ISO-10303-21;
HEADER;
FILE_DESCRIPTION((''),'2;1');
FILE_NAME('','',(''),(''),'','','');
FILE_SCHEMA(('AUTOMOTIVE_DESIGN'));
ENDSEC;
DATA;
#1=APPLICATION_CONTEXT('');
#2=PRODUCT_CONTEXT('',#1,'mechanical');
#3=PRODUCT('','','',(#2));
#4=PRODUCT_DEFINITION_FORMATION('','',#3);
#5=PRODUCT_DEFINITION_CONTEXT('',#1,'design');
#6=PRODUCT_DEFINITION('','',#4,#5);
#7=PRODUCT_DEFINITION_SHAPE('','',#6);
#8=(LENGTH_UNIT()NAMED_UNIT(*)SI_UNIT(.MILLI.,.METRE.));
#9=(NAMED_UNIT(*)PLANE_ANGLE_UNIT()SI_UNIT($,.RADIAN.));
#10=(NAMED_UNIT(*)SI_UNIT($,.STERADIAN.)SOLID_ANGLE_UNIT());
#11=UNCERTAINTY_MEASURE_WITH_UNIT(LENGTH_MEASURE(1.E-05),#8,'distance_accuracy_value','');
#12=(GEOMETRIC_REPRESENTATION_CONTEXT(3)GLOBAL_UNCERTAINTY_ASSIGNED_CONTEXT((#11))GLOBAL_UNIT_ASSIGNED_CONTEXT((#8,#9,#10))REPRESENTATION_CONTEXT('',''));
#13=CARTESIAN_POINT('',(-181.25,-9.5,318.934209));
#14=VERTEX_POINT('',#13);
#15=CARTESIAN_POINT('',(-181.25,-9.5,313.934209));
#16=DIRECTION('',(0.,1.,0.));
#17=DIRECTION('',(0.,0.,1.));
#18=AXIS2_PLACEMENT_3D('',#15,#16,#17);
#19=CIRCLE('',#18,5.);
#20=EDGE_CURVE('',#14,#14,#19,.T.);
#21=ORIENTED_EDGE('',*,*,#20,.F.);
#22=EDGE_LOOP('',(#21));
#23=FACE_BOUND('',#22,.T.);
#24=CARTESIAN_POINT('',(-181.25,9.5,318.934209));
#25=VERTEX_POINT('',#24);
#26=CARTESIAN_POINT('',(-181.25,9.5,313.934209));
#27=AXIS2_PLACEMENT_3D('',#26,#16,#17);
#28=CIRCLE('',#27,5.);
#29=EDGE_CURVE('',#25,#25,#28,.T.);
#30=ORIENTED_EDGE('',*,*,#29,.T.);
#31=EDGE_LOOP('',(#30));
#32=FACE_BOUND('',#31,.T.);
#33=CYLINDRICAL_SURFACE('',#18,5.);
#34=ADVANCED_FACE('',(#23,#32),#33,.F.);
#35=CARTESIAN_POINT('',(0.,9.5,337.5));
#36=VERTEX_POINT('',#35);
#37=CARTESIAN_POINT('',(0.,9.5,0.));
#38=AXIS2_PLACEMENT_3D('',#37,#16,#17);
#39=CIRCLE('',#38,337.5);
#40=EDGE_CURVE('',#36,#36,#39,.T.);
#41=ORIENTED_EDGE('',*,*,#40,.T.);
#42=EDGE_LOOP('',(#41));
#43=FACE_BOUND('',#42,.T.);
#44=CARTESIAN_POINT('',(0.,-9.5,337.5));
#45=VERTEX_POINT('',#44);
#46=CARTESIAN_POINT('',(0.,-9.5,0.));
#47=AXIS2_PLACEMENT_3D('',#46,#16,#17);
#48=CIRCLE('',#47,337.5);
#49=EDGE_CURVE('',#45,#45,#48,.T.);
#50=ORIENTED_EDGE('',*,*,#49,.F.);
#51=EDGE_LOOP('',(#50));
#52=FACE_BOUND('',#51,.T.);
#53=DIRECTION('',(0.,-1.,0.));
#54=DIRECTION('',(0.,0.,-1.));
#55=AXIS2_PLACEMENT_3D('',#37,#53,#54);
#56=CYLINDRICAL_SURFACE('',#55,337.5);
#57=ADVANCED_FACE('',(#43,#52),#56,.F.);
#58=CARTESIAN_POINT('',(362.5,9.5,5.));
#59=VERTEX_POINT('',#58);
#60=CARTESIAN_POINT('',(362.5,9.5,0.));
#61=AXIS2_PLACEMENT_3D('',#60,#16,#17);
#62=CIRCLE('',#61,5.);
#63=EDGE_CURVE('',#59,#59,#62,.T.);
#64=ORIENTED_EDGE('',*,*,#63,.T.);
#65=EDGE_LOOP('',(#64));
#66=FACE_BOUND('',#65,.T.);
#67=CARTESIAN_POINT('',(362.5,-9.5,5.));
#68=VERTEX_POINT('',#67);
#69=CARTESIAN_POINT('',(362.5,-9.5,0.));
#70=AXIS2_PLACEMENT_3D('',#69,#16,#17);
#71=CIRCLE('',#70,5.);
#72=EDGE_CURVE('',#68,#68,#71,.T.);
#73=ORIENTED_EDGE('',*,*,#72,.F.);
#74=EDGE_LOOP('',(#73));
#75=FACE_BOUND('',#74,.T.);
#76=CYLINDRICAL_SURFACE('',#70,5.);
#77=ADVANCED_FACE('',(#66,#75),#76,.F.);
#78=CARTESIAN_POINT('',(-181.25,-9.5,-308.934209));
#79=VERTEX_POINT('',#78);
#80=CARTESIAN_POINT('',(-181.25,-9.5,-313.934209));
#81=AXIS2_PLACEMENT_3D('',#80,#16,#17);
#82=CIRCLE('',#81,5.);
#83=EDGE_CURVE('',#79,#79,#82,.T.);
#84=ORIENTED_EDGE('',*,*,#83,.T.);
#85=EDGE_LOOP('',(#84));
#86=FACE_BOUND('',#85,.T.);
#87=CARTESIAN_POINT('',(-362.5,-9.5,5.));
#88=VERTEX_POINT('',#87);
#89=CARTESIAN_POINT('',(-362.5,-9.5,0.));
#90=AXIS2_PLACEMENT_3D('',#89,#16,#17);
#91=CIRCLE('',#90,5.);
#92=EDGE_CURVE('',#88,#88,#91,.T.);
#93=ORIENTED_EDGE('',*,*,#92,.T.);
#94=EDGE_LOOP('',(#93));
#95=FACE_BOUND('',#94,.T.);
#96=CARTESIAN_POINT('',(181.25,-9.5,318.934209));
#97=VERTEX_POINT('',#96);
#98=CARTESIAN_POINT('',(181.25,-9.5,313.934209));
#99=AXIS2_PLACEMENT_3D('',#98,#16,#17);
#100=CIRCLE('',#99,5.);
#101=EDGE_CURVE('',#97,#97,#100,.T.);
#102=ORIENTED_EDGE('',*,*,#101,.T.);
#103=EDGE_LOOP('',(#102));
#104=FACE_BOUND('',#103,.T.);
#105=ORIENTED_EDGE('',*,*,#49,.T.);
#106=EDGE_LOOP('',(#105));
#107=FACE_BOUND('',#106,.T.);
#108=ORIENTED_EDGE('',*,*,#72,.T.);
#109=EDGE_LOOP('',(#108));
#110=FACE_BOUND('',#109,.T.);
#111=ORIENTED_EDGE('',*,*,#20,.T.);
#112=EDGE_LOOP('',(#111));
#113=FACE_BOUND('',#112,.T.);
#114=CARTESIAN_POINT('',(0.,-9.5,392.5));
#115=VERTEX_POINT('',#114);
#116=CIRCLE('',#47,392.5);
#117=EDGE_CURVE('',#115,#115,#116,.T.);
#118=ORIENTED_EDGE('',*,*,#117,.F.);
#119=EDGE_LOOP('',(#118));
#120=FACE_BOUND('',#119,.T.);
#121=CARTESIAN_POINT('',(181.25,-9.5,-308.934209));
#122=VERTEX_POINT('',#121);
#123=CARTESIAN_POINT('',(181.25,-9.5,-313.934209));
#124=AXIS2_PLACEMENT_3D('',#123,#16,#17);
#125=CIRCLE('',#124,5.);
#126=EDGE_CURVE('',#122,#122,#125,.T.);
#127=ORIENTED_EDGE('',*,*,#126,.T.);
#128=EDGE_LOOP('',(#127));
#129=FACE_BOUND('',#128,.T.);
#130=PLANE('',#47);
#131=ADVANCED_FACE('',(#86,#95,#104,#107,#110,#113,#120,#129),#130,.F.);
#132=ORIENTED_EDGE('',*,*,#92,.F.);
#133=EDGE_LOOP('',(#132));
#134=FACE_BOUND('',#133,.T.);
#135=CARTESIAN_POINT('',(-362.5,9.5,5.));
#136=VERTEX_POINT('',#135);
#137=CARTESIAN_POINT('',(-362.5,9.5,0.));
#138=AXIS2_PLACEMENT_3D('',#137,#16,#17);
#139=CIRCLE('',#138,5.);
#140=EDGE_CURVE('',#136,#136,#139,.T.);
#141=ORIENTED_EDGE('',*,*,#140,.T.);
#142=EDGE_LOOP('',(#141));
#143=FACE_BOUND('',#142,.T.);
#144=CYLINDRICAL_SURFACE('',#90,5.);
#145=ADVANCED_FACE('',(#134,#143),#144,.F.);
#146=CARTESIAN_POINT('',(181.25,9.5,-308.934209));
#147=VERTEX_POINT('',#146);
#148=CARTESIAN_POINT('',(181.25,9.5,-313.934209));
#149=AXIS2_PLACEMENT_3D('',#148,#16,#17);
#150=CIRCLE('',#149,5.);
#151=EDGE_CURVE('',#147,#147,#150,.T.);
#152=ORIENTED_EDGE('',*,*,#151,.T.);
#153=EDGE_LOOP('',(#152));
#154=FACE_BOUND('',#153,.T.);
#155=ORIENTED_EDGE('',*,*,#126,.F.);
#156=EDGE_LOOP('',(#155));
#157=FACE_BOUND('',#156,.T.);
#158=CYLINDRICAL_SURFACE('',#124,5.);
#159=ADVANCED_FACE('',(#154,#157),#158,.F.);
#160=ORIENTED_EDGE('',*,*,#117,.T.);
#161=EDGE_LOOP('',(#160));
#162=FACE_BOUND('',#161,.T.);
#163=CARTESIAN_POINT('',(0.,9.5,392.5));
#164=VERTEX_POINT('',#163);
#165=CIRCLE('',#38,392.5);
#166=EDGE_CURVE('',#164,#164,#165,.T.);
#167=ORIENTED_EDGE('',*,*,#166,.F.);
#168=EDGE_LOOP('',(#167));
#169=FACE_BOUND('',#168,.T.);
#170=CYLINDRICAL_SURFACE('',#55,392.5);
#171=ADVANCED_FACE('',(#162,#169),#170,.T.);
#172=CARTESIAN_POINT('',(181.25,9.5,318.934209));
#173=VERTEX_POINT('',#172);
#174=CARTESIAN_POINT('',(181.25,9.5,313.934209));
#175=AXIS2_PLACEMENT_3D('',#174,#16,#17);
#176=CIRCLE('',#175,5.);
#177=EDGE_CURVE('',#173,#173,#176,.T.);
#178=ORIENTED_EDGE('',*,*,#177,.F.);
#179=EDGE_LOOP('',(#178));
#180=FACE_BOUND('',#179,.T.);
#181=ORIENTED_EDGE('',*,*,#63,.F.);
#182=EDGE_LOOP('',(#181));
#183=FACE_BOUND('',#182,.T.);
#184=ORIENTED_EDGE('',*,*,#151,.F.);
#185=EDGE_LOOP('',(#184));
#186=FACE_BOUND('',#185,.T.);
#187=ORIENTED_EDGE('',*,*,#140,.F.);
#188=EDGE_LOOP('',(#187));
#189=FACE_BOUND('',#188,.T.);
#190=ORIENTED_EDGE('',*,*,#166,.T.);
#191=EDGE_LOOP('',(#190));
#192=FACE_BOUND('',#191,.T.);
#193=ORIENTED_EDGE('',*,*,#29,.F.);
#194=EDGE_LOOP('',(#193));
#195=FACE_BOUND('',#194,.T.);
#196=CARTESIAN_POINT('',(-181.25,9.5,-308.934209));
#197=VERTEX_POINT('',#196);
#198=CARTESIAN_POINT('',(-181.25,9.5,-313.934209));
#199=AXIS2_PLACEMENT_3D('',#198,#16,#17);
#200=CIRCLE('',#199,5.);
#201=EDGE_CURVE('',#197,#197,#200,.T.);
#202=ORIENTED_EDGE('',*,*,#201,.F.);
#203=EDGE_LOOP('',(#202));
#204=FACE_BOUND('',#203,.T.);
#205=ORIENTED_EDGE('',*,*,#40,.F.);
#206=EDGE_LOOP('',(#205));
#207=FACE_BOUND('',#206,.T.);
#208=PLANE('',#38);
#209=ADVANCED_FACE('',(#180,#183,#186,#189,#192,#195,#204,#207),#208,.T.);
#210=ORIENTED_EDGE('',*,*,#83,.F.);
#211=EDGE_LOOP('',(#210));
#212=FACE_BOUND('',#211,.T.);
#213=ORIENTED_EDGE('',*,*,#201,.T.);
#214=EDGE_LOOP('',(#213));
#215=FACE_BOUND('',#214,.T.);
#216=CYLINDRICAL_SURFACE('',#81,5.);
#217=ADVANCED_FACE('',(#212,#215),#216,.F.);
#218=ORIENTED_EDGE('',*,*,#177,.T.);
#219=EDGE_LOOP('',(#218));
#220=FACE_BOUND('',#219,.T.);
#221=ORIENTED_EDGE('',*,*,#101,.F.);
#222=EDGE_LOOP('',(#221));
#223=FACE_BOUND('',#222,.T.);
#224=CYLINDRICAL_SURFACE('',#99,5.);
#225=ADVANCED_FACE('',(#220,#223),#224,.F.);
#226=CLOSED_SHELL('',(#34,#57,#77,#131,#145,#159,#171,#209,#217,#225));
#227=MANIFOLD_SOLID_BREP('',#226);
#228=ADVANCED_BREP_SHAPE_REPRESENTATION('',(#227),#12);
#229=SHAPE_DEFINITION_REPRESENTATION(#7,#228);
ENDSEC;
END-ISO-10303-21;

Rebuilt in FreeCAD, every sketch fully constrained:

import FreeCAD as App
import Part
import Sketcher
Q = App.Units.Quantity

doc = App.newDocument("Part")
params = doc.addObject("Spreadsheet::Sheet", "Params")
for row, (alias, value) in enumerate([
    ("sketch1_diameter", "785 mm"),
    ("sketch1_diameter2", "675 mm"),
    ("pad1_length", "19 mm"),
    ("sketch2_diameter", "10 mm"),
], start=1):
    params.set(f"A{row}", alias)
    params.set(f"B{row}", "=" + value)
    params.setAlias(f"B{row}", alias)

body = doc.addObject("PartDesign::Body", "Body")

sketch1 = doc.addObject("Sketcher::SketchObject", "Sketch")
body.addObject(sketch1)
sketch1.AttachmentSupport = (doc.XZ_Plane, [""])
sketch1.MapMode = "FlatFace"
sketch1.addGeometry([
    Part.Circle(App.Vector(0, 0, 0), App.Vector(0, 0, 1), 392),
    Part.Circle(App.Vector(0, 0, 0), App.Vector(0, 0, 1), 338),
], False)
sketch1.addConstraint([
    Sketcher.Constraint("Coincident", 0, 3, -1, 1),
    Sketcher.Constraint("Coincident", 1, 3, -1, 1),
    Sketcher.Constraint("Diameter", 0, Q("785 mm")),
    Sketcher.Constraint("Diameter", 1, Q("675 mm")),
])
sketch1.setExpression("Constraints[2]", "Params.sketch1_diameter")
sketch1.setExpression("Constraints[3]", "Params.sketch1_diameter2")
pad1 = doc.addObject("PartDesign::Pad", "Pad")
body.addObject(pad1)
pad1.Profile = sketch1
pad1.setExpression("Length", "Params.pad1_length")
pad1.Midplane = True

sketch2 = doc.addObject("Sketcher::SketchObject", "Sketch001")
body.addObject(sketch2)
sketch2.AttachmentSupport = (doc.XZ_Plane, [""])
sketch2.MapMode = "FlatFace"
sketch2.AttachmentOffset = App.Placement(App.Vector(0, 0, -9.5), App.Rotation())
sketch2.addGeometry([
    Part.Circle(App.Vector(181, -314, 0), App.Vector(0, 0, 1), 5),
    Part.Circle(App.Vector(362, 0, 0), App.Vector(0, 0, 1), 5),
    Part.Circle(App.Vector(181, 314, 0), App.Vector(0, 0, 1), 5),
    Part.Circle(App.Vector(-181, 314, 0), App.Vector(0, 0, 1), 5),
    Part.Circle(App.Vector(-362, 0, 0), App.Vector(0, 0, 1), 5),
    Part.Circle(App.Vector(-181, -314, 0), App.Vector(0, 0, 1), 5),
], False)
sketch2.addConstraint([
    Sketcher.Constraint("Equal", 0, 1),
    Sketcher.Constraint("Equal", 1, 2),
    Sketcher.Constraint("Equal", 2, 3),
    Sketcher.Constraint("Equal", 3, 4),
    Sketcher.Constraint("Equal", 4, 5),
    Sketcher.Constraint("Symmetric", 0, 3, 3, 3, -1, 1),
    Sketcher.Constraint("Symmetric", 1, 3, 4, 3, -1, 1),
    Sketcher.Constraint("Symmetric", 2, 3, 5, 3, -1, 1),
    Sketcher.Constraint("Symmetric", 2, 3, 3, 3, -2),
    Sketcher.Constraint("PointOnObject", 1, 3, -1),
    Sketcher.Constraint("Diameter", 0, Q("10 mm")),
    Sketcher.Constraint("DistanceX", 4, 3, 1, 3, Q("725 mm")),
    Sketcher.Constraint("DistanceX", 3, 3, 2, 3, Q("362.5 mm")),
    Sketcher.Constraint("DistanceY", 0, 3, -1, 1, Q("313.934209 mm")),
])
sketch2.setExpression("Constraints[10]", "Params.sketch2_diameter")
pocket1 = doc.addObject("PartDesign::Pocket", "Pocket")
body.addObject(pocket1)
pocket1.Profile = sketch2
pocket1.Type = "ThroughAll"
pocket1.Reversed = True

doc.recompute()
